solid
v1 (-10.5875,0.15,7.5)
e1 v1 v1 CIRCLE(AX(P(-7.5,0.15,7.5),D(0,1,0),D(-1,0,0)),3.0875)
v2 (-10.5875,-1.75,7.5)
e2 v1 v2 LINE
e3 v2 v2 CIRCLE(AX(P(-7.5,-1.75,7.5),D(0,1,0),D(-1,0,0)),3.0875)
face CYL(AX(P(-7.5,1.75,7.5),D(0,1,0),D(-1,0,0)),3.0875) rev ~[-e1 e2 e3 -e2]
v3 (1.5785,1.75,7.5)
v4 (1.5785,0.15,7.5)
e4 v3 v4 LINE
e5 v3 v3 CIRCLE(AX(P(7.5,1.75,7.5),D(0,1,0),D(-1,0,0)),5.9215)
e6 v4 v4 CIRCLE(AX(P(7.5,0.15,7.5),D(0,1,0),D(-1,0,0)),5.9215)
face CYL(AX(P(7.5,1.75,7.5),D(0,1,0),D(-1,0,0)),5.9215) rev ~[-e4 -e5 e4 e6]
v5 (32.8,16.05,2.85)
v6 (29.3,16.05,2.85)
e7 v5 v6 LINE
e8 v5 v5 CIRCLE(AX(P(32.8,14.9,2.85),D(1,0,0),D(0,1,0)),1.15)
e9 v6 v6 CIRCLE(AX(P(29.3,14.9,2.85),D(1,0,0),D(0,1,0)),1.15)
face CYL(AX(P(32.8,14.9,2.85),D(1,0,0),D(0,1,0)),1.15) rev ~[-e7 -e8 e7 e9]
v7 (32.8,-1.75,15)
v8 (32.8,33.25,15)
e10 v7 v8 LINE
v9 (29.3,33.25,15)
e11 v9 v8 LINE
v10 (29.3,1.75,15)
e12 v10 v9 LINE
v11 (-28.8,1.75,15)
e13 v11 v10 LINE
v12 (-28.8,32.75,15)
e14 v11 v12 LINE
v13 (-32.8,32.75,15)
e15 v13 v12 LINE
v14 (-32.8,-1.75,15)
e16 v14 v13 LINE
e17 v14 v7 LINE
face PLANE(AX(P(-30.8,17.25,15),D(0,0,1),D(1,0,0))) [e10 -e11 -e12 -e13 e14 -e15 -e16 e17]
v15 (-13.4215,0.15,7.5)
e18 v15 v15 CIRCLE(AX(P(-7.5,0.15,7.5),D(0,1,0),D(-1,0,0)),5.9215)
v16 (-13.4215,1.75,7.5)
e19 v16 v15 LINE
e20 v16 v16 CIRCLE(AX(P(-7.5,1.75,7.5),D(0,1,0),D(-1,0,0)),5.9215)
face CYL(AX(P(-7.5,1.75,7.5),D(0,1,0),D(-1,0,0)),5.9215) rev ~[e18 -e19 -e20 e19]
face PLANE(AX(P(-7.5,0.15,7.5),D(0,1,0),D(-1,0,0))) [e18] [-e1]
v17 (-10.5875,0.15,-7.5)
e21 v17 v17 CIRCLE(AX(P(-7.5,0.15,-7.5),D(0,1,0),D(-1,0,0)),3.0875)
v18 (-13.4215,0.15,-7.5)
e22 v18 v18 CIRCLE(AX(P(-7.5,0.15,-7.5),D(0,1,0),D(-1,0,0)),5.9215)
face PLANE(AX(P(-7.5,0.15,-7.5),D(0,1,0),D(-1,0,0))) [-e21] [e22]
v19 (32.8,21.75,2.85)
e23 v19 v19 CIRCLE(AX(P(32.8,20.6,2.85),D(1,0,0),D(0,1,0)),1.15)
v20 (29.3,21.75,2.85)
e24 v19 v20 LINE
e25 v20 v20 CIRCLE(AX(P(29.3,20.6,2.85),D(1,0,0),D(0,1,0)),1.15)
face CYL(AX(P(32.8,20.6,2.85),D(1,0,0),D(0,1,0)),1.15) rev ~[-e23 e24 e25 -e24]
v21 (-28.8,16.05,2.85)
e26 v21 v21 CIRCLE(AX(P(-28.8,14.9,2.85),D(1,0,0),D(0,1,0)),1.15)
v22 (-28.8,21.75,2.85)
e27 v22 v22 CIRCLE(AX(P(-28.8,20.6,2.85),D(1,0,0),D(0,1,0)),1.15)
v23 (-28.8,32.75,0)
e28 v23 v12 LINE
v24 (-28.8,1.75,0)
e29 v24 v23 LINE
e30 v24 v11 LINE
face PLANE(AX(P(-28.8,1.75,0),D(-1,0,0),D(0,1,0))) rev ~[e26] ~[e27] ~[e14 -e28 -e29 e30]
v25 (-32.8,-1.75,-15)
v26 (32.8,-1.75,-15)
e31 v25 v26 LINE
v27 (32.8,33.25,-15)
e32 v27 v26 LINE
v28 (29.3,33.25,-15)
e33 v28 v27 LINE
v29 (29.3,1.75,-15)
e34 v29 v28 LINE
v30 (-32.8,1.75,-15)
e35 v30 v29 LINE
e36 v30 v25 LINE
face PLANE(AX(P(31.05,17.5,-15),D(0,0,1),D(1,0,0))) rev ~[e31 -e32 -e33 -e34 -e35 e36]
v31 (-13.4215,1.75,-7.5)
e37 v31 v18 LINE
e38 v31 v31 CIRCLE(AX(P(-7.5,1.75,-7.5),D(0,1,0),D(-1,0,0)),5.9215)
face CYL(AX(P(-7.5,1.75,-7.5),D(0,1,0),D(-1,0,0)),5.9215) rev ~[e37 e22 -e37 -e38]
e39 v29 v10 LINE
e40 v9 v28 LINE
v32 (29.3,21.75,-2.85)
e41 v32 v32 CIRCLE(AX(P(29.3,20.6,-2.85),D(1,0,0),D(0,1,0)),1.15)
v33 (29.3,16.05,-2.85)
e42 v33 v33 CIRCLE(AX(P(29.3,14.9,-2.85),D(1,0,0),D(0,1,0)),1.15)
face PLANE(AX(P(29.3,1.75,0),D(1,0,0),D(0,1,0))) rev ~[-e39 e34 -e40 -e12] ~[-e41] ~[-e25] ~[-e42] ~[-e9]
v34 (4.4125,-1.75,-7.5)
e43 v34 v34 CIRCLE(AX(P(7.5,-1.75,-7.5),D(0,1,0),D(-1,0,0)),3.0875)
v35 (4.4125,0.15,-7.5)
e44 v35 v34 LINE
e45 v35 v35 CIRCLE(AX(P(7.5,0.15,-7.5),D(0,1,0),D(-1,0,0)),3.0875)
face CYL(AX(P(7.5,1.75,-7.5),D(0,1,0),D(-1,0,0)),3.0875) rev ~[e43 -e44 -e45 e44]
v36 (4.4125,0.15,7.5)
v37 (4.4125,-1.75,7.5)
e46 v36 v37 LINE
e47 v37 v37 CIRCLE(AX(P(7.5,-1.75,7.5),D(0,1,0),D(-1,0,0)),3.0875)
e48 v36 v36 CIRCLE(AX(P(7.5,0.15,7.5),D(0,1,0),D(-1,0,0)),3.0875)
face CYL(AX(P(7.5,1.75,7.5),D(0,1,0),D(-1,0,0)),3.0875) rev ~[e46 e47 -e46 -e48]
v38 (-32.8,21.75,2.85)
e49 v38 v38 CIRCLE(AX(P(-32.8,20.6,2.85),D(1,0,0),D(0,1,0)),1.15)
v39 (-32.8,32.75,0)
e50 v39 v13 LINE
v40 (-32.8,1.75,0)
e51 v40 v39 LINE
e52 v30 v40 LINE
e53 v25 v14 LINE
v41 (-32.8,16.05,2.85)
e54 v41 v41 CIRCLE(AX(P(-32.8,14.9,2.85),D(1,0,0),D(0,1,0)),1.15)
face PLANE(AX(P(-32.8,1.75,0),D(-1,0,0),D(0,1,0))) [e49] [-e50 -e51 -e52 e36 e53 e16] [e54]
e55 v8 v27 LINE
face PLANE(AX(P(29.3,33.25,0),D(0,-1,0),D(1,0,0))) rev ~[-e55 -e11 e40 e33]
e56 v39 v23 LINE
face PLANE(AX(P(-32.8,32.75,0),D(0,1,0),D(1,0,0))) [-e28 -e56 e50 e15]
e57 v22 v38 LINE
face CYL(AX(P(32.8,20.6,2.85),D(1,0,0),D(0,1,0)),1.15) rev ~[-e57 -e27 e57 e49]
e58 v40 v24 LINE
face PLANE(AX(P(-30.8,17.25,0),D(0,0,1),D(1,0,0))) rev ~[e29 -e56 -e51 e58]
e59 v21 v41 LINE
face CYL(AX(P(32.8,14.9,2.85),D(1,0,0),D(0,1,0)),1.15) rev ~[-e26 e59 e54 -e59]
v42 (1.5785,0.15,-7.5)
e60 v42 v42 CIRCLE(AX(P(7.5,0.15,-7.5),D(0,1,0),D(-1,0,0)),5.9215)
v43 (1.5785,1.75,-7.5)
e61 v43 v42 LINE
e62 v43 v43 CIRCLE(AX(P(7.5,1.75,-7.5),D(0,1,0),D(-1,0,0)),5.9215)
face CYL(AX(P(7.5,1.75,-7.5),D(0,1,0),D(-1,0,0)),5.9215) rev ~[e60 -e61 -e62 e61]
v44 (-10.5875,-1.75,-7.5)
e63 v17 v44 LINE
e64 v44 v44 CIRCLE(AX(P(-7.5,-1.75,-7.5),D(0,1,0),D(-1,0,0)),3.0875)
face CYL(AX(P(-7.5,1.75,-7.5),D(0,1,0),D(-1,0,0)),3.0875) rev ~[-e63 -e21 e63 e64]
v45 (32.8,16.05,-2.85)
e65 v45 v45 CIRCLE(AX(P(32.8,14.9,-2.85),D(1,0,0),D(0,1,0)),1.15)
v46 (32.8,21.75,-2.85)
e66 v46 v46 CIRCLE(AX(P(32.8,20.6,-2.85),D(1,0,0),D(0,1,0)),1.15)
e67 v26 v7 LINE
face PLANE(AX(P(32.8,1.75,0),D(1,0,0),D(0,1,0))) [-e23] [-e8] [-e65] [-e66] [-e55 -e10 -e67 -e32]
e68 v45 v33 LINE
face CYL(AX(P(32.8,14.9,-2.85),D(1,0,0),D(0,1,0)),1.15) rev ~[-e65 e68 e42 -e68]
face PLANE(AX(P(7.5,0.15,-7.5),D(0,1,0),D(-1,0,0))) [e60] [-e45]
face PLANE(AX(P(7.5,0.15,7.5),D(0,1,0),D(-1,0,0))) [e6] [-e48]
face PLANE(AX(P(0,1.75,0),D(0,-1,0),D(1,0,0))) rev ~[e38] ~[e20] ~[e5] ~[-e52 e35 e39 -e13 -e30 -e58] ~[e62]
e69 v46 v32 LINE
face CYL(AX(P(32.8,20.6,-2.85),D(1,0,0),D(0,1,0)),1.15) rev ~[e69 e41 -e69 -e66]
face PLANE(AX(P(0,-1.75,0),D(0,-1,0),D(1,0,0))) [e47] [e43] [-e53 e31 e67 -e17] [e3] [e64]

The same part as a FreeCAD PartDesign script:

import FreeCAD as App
import Part
import Sketcher
from FreeCAD import Vector


def add_polygon(sketch, points):
    """Adds a closed chain of lines whose ends are joined by coincident constraints."""
    first, n = sketch.GeometryCount, len(points)
    for a, b in zip(points, points[1:] + points[:1]):
        sketch.addGeometry(Part.LineSegment(App.Vector(*a, 0), App.Vector(*b, 0)), False)
    for i in range(n):
        sketch.addConstraint(Sketcher.Constraint("Coincident", first + i, 2, first + (i + 1) % n, 1))

doc = App.newDocument("Part")
body = doc.addObject("PartDesign::Body", "Body")

# Sketch on XZ plane
sketch1 = body.newObject("Sketcher::SketchObject", "Sketch")
sketch1.AttachmentSupport = (doc.getObject("XZ_Plane"), [""])
sketch1.MapMode = "FlatFace"
add_polygon(sketch1, [(-33, 15), (-33, -15), (33, -15), (33, 15)])  # lines 0-3
sketch1.addConstraint(Sketcher.Constraint("Vertical", 0))
sketch1.addConstraint(Sketcher.Constraint("Horizontal", 1))
sketch1.addConstraint(Sketcher.Constraint("Vertical", 2))
sketch1.addConstraint(Sketcher.Constraint("Horizontal", 3))
sketch1.addConstraint(Sketcher.Constraint("Symmetric", 0, 2, 2, 2, -1, 1))
sketch1.addConstraint(Sketcher.Constraint("DistanceY", 0, 2, 0, 1, 30.0))
sketch1.addConstraint(Sketcher.Constraint("DistanceX", 1, 1, 1, 2, 65.6))
pad1 = body.newObject("PartDesign::Pad", "Pad")
pad1.Profile = sketch1
pad1.Length = 3.5
pad1.Midplane = True

# Sketch on XY plane
sketch2 = body.newObject("Sketcher::SketchObject", "Sketch001")
sketch2.AttachmentSupport = (doc.getObject("XY_Plane"), [""])
sketch2.MapMode = "FlatFace"
add_polygon(sketch2, [(29.3, 33.2), (29.3, 1.8), (32.8, 1.8), (32.8, 33.2)])  # lines 0-3
sketch2.addConstraint(Sketcher.Constraint("Vertical", 0))
sketch2.addConstraint(Sketcher.Constraint("Horizontal", 1))
sketch2.addConstraint(Sketcher.Constraint("Vertical", 2))
sketch2.addConstraint(Sketcher.Constraint("Horizontal", 3))
sketch2.addConstraint(Sketcher.Constraint("DistanceX", 1, 1, 1, 2, 3.5))
sketch2.addConstraint(Sketcher.Constraint("DistanceY", 0, 2, 0, 1, 31.5))
sketch2.addConstraint(Sketcher.Constraint("DistanceX", -1, 1, 0, 2, 29.3))
sketch2.addConstraint(Sketcher.Constraint("DistanceY", -1, 1, 0, 2, 1.75))
pad2 = body.newObject("PartDesign::Pad", "Pad001")
pad2.Profile = sketch2
pad2.Length = 30
pad2.Midplane = True

# Sketch on XY plane
sketch3 = body.newObject("Sketcher::SketchObject", "Sketch002")
sketch3.AttachmentSupport = (doc.getObject("XY_Plane"), [""])
sketch3.MapMode = "FlatFace"
add_polygon(sketch3, [(-32.8, 32.8), (-32.8, 1.8), (-28.8, 1.8), (-28.8, 32.8)])  # lines 0-3
sketch3.addConstraint(Sketcher.Constraint("Vertical", 0))
sketch3.addConstraint(Sketcher.Constraint("Horizontal", 1))
sketch3.addConstraint(Sketcher.Constraint("Vertical", 2))
sketch3.addConstraint(Sketcher.Constraint("Horizontal", 3))
sketch3.addConstraint(Sketcher.Constraint("DistanceX", 1, 1, 1, 2, 4.0))
sketch3.addConstraint(Sketcher.Constraint("DistanceY", 0, 2, 0, 1, 31.0))
sketch3.addConstraint(Sketcher.Constraint("DistanceX", 0, 2, -1, 1, 32.8))
sketch3.addConstraint(Sketcher.Constraint("DistanceY", -1, 1, 0, 2, 1.75))
pad3 = body.newObject("PartDesign::Pad", "Pad002")
pad3.Profile = sketch3
pad3.Length = 15

# Sketch on YZ plane
sketch4 = body.newObject("Sketcher::SketchObject", "Sketch003")
sketch4.AttachmentSupport = (doc.getObject("YZ_Plane"), [""])
sketch4.MapMode = "FlatFace"
sketch4.AttachmentOffset = App.Placement(Vector(0, 0, 32.8), App.Rotation())
sketch4.addGeometry(Part.Circle(Vector(14.9, 2.9, 0), Vector(0, 0, 1), 1.1), False)
sketch4.addGeometry(Part.Circle(Vector(20.6, 2.9, 0), Vector(0, 0, 1), 1.1), False)
sketch4.addGeometry(Part.Circle(Vector(14.9, -2.9, 0), Vector(0, 0, 1), 1.1), False)
sketch4.addGeometry(Part.Circle(Vector(20.6, -2.9, 0), Vector(0, 0, 1), 1.1), False)
sketch4.addConstraint(Sketcher.Constraint("Equal", 0, 1))
sketch4.addConstraint(Sketcher.Constraint("Equal", 1, 2))
sketch4.addConstraint(Sketcher.Constraint("Equal", 2, 3))
sketch4.addConstraint(Sketcher.Constraint("Symmetric", 0, 3, 2, 3, -1))
sketch4.addConstraint(Sketcher.Constraint("Symmetric", 1, 3, 3, 3, -1))
sketch4.addConstraint(Sketcher.Constraint("Horizontal", 0, 3, 1, 3))
sketch4.addConstraint(Sketcher.Constraint("Diameter", 0, 2.3))
sketch4.addConstraint(Sketcher.Constraint("DistanceX", -1, 1, 0, 3, 14.9))
sketch4.addConstraint(Sketcher.Constraint("DistanceX", -1, 1, 1, 3, 20.6))
sketch4.addConstraint(Sketcher.Constraint("DistanceY", 2, 3, 0, 3, 5.7))
pocket1 = body.newObject("PartDesign::Pocket", "Pocket")
pocket1.Profile = sketch4
pocket1.Length = 200

# Sketch on XZ plane
sketch5 = body.newObject("Sketcher::SketchObject", "Sketch004")
sketch5.AttachmentSupport = (doc.getObject("XZ_Plane"), [""])
sketch5.MapMode = "FlatFace"
sketch5.AttachmentOffset = App.Placement(Vector(0, 0, -1.75), App.Rotation())
sketch5.addGeometry(Part.Circle(Vector(7.5, 7.5, 0), Vector(0, 0, 1), 3.1), False)
sketch5.addGeometry(Part.Circle(Vector(7.5, -7.5, 0), Vector(0, 0, 1), 3.1), False)
sketch5.addGeometry(Part.Circle(Vector(-7.5, 7.5, 0), Vector(0, 0, 1), 3.1), False)
sketch5.addGeometry(Part.Circle(Vector(-7.5, -7.5, 0), Vector(0, 0, 1), 3.1), False)
sketch5.addConstraint(Sketcher.Constraint("Equal", 0, 1))
sketch5.addConstraint(Sketcher.Constraint("Equal", 1, 2))
sketch5.addConstraint(Sketcher.Constraint("Equal", 2, 3))
sketch5.addConstraint(Sketcher.Constraint("Symmetric", 1, 3, 2, 3, -1, 1))
sketch5.addConstraint(Sketcher.Constraint("Symmetric", 0, 3, 3, 3, -1, 1))
sketch5.addConstraint(Sketcher.Constraint("Symmetric", 0, 3, 2, 3, -2))
sketch5.addConstraint(Sketcher.Constraint("Diameter", 0, 6.175))
sketch5.addConstraint(Sketcher.Constraint("DistanceY", 1, 3, 0, 3, 15.0))
sketch5.addConstraint(Sketcher.Constraint("DistanceX", 2, 3, 0, 3, 15.0))
pocket2 = body.newObject("PartDesign::Pocket", "Pocket001")
pocket2.Profile = sketch5
pocket2.Length = 25
pocket2.Reversed = True

# Sketch on XZ plane
sketch6 = body.newObject("Sketcher::SketchObject", "Sketch005")
sketch6.AttachmentSupport = (doc.getObject("XZ_Plane"), [""])
sketch6.MapMode = "FlatFace"
sketch6.AttachmentOffset = App.Placement(Vector(0, 0, -1.75), App.Rotation())
sketch6.addGeometry(Part.Circle(Vector(8, 8, 0), Vector(0, 0, 1), 6), False)
sketch6.addGeometry(Part.Circle(Vector(8, -8, 0), Vector(0, 0, 1), 6), False)
sketch6.addGeometry(Part.Circle(Vector(-8, -8, 0), Vector(0, 0, 1), 6), False)
sketch6.addGeometry(Part.Circle(Vector(-8, 8, 0), Vector(0, 0, 1), 6), False)
sketch6.addConstraint(Sketcher.Constraint("Equal", 0, 1))
sketch6.addConstraint(Sketcher.Constraint("Equal", 1, 2))
sketch6.addConstraint(Sketcher.Constraint("Equal", 2, 3))
sketch6.addConstraint(Sketcher.Constraint("Symmetric", 0, 3, 2, 3, -1, 1))
sketch6.addConstraint(Sketcher.Constraint("Symmetric", 1, 3, 3, 3, -1, 1))
sketch6.addConstraint(Sketcher.Constraint("Symmetric", 1, 3, 2, 3, -2))
sketch6.addConstraint(Sketcher.Constraint("Diameter", 0, 11.843))
sketch6.addConstraint(Sketcher.Constraint("DistanceY", 1, 3, 0, 3, 15.0))
sketch6.addConstraint(Sketcher.Constraint("DistanceX", 2, 3, 1, 3, 15.0))
pocket3 = body.newObject("PartDesign::Pocket", "Pocket002")
pocket3.Profile = sketch6
pocket3.Length = 1.6
pocket3.Reversed = True

doc.recompute()
